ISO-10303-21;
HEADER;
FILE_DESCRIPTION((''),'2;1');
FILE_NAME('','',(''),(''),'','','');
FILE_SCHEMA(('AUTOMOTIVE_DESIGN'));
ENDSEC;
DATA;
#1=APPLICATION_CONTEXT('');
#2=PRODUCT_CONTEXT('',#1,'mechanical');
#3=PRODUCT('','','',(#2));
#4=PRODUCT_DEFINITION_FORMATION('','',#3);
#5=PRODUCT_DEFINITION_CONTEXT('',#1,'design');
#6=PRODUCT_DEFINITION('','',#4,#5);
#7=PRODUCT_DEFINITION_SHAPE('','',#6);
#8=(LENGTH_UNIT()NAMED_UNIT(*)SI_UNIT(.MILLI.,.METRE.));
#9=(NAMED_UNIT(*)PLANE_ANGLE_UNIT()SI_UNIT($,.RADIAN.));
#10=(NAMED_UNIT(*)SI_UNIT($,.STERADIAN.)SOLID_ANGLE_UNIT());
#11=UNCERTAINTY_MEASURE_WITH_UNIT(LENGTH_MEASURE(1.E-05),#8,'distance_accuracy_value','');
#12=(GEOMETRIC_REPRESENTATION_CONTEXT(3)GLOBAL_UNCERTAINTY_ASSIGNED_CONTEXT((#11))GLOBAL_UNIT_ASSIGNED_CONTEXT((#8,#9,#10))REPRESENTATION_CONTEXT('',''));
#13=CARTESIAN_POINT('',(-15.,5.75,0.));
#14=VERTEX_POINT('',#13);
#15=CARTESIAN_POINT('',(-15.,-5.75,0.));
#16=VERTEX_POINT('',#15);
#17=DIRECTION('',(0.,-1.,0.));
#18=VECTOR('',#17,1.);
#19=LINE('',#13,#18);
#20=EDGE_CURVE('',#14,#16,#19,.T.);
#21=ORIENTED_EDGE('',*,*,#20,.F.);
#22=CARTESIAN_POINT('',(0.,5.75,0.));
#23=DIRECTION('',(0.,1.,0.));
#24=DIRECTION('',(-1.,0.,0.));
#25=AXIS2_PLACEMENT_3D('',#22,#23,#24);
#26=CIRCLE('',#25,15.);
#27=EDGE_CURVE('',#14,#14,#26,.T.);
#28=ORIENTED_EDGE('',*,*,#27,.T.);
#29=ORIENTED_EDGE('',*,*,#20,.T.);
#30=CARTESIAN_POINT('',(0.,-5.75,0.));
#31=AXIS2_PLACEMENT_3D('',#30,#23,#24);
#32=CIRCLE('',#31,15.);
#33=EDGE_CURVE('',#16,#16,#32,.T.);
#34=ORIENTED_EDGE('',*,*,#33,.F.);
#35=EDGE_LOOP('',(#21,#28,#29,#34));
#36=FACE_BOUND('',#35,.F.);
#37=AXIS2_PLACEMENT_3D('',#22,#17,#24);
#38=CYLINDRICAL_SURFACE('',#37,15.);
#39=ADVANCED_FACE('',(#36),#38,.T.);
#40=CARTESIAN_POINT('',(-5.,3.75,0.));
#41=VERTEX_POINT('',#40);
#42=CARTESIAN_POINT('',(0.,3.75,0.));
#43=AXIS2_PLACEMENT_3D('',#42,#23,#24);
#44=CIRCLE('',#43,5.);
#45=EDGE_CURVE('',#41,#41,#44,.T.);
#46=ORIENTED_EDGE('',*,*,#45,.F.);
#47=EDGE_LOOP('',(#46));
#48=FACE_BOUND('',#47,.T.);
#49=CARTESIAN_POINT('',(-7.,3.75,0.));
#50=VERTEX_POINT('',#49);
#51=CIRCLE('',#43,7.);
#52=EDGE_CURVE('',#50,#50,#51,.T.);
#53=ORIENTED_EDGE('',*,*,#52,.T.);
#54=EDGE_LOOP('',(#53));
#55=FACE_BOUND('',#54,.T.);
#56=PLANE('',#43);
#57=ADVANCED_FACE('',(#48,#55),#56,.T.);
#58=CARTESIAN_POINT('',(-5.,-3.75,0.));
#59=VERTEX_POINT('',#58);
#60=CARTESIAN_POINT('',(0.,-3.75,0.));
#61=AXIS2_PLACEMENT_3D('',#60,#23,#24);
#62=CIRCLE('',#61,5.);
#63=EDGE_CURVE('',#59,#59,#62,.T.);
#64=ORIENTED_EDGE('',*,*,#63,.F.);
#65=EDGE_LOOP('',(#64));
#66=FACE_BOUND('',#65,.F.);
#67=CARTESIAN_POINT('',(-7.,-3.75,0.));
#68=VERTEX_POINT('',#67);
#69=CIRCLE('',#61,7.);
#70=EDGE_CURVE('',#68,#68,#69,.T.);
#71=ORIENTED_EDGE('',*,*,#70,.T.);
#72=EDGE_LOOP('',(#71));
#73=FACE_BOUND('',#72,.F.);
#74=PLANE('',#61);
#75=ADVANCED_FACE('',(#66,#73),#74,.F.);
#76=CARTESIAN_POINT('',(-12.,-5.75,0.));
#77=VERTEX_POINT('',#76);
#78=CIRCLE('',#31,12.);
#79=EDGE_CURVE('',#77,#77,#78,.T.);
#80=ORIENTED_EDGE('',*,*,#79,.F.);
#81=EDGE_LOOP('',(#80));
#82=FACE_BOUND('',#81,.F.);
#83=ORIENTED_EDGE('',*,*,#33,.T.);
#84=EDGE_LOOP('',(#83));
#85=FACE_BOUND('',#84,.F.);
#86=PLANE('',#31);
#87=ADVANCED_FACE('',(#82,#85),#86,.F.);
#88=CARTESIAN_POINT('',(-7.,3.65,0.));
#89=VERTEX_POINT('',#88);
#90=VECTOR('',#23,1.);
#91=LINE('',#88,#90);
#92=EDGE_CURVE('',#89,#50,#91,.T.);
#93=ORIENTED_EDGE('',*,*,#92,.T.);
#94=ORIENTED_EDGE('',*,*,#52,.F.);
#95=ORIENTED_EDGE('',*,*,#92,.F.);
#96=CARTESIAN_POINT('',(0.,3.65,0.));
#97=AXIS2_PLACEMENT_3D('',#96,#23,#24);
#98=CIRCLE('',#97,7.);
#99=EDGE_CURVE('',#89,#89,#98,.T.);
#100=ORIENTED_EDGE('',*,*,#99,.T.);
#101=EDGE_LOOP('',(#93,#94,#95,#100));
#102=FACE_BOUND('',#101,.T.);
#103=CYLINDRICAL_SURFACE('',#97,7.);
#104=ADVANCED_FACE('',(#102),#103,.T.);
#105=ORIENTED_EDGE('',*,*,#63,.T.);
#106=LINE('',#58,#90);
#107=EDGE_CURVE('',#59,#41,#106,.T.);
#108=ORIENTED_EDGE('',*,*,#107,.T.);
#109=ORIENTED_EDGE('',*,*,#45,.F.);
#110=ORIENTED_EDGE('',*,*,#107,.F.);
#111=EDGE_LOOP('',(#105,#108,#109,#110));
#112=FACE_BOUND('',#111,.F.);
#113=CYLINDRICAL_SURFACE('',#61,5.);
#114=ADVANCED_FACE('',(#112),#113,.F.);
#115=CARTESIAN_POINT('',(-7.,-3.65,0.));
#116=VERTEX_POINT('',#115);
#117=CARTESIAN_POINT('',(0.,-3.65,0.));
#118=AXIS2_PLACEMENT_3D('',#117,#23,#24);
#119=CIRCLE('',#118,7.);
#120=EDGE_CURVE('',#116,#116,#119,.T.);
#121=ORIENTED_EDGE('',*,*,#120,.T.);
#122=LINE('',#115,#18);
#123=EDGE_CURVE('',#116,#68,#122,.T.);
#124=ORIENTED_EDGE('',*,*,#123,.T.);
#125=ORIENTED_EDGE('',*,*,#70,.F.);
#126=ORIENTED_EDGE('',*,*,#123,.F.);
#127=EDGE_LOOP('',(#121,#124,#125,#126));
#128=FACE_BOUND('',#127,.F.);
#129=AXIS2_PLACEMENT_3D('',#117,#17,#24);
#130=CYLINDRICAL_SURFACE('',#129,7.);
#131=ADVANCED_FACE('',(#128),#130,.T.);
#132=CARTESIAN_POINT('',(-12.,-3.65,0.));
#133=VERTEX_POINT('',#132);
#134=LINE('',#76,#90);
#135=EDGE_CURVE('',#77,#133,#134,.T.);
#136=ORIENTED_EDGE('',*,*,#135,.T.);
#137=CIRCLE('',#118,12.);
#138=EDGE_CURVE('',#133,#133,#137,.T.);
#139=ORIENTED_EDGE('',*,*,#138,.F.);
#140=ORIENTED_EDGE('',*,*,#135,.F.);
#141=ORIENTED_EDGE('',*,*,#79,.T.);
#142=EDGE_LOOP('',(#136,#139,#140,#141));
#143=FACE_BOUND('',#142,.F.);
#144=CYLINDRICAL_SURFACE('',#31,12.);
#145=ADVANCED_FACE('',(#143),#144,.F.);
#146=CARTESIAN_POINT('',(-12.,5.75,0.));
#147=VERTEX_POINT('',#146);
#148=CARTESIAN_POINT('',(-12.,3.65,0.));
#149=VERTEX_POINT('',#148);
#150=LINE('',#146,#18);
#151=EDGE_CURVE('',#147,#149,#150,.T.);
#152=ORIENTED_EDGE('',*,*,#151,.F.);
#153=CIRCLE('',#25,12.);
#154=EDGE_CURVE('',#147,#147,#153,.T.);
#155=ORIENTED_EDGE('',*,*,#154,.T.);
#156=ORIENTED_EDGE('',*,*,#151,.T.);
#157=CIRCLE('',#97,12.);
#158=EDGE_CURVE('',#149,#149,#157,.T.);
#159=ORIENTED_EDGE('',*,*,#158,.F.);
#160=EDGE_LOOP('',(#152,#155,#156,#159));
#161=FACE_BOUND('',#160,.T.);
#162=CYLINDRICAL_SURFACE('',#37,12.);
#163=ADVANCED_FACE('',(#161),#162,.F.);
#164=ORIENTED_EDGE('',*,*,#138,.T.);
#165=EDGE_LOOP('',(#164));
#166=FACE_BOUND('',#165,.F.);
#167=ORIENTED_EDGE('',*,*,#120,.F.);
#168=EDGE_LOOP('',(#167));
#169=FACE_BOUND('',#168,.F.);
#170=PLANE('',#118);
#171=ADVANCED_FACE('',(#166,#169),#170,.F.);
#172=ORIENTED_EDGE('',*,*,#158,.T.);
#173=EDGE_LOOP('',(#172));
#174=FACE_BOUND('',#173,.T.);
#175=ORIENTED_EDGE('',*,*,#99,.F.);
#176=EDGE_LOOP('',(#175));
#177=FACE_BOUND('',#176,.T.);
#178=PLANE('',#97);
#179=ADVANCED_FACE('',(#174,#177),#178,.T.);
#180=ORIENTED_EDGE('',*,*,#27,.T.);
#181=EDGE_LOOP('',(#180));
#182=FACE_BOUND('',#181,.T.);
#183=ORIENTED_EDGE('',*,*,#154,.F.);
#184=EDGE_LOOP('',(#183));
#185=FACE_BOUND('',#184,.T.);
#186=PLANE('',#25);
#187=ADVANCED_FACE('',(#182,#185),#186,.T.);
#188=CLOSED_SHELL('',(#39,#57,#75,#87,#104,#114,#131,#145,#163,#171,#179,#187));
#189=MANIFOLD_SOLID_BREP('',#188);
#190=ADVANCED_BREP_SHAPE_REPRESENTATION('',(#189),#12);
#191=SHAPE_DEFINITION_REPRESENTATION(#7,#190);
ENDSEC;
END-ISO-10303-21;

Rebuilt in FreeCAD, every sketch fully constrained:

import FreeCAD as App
import Part
import Sketcher

V = App.Vector

doc = App.newDocument("Part")
body = doc.addObject("PartDesign::Body", "Body")

sketch1 = body.newObject("Sketcher::SketchObject", "Sketch")
sketch1.AttachmentSupport = (doc.getObject("XY_Plane"), [""])
sketch1.MapMode = "FlatFace"
sketch1.addGeometry([
    Part.LineSegment(V(-12, 5.75, 0), V(-15, 5.75, 0)),
    Part.LineSegment(V(-15, 5.75, 0), V(-15, -5.75, 0)),
    Part.LineSegment(V(-15, -5.75, 0), V(-12, -5.75, 0)),
    Part.LineSegment(V(-12, -5.75, 0), V(-12, -3.65, 0)),
    Part.LineSegment(V(-12, -3.65, 0), V(-7, -3.65, 0)),
    Part.LineSegment(V(-7, -3.65, 0), V(-7, -3.75, 0)),
    Part.LineSegment(V(-7, -3.75, 0), V(-5, -3.75, 0)),
    Part.LineSegment(V(-5, -3.75, 0), V(-5, 3.75, 0)),
    Part.LineSegment(V(-5, 3.75, 0), V(-7, 3.75, 0)),
    Part.LineSegment(V(-7, 3.75, 0), V(-7, 3.65, 0)),
    Part.LineSegment(V(-7, 3.65, 0), V(-12, 3.65, 0)),
    Part.LineSegment(V(-12, 3.65, 0), V(-12, 5.75, 0)),
], False)
sketch1.addConstraint([
    Sketcher.Constraint("Coincident", 0, 2, 1, 1),
    Sketcher.Constraint("Coincident", 1, 2, 2, 1),
    Sketcher.Constraint("Coincident", 2, 2, 3, 1),
    Sketcher.Constraint("Coincident", 3, 2, 4, 1),
    Sketcher.Constraint("Coincident", 4, 2, 5, 1),
    Sketcher.Constraint("Coincident", 5, 2, 6, 1),
    Sketcher.Constraint("Coincident", 6, 2, 7, 1),
    Sketcher.Constraint("Coincident", 7, 2, 8, 1),
    Sketcher.Constraint("Coincident", 8, 2, 9, 1),
    Sketcher.Constraint("Coincident", 9, 2, 10, 1),
    Sketcher.Constraint("Coincident", 10, 2, 11, 1),
    Sketcher.Constraint("Coincident", 11, 2, 0, 1),
    Sketcher.Constraint("Horizontal", 0),
    Sketcher.Constraint("Vertical", 1),
    Sketcher.Constraint("Horizontal", 2),
    Sketcher.Constraint("Vertical", 3),
    Sketcher.Constraint("Horizontal", 4),
    Sketcher.Constraint("Vertical", 5),
    Sketcher.Constraint("Horizontal", 6),
    Sketcher.Constraint("Vertical", 7),
    Sketcher.Constraint("Horizontal", 8),
    Sketcher.Constraint("Vertical", 9),
    Sketcher.Constraint("Horizontal", 10),
    Sketcher.Constraint("Vertical", 11),
    Sketcher.Constraint("Symmetric", 5, 2, 8, 2, -1),
    Sketcher.Constraint("Symmetric", 3, 2, 10, 2, -1),
    Sketcher.Constraint("Equal", 3, 11),
    Sketcher.Constraint("DistanceX", 0, 2, 0, 1, 3.0),
    Sketcher.Constraint("DistanceX", 4, 1, 4, 2, 5.0),
    Sketcher.Constraint("DistanceX", 6, 1, 6, 2, 2.0),
    Sketcher.Constraint("DistanceY", 1, 2, 1, 1, 11.5),
    Sketcher.Constraint("DistanceY", 5, 2, 5, 1, 0.1),
    Sketcher.Constraint("DistanceX", 0, 2, -1, 1, 15.0),
    Sketcher.Constraint("DistanceY", 2, 2, 5, 2, 2.0),
])
revolution = body.newObject("PartDesign::Revolution", "Revolution")
revolution.Profile = sketch1
revolution.ReferenceAxis = (sketch1, ["V_Axis"])
revolution.Angle = 360

doc.recompute()
